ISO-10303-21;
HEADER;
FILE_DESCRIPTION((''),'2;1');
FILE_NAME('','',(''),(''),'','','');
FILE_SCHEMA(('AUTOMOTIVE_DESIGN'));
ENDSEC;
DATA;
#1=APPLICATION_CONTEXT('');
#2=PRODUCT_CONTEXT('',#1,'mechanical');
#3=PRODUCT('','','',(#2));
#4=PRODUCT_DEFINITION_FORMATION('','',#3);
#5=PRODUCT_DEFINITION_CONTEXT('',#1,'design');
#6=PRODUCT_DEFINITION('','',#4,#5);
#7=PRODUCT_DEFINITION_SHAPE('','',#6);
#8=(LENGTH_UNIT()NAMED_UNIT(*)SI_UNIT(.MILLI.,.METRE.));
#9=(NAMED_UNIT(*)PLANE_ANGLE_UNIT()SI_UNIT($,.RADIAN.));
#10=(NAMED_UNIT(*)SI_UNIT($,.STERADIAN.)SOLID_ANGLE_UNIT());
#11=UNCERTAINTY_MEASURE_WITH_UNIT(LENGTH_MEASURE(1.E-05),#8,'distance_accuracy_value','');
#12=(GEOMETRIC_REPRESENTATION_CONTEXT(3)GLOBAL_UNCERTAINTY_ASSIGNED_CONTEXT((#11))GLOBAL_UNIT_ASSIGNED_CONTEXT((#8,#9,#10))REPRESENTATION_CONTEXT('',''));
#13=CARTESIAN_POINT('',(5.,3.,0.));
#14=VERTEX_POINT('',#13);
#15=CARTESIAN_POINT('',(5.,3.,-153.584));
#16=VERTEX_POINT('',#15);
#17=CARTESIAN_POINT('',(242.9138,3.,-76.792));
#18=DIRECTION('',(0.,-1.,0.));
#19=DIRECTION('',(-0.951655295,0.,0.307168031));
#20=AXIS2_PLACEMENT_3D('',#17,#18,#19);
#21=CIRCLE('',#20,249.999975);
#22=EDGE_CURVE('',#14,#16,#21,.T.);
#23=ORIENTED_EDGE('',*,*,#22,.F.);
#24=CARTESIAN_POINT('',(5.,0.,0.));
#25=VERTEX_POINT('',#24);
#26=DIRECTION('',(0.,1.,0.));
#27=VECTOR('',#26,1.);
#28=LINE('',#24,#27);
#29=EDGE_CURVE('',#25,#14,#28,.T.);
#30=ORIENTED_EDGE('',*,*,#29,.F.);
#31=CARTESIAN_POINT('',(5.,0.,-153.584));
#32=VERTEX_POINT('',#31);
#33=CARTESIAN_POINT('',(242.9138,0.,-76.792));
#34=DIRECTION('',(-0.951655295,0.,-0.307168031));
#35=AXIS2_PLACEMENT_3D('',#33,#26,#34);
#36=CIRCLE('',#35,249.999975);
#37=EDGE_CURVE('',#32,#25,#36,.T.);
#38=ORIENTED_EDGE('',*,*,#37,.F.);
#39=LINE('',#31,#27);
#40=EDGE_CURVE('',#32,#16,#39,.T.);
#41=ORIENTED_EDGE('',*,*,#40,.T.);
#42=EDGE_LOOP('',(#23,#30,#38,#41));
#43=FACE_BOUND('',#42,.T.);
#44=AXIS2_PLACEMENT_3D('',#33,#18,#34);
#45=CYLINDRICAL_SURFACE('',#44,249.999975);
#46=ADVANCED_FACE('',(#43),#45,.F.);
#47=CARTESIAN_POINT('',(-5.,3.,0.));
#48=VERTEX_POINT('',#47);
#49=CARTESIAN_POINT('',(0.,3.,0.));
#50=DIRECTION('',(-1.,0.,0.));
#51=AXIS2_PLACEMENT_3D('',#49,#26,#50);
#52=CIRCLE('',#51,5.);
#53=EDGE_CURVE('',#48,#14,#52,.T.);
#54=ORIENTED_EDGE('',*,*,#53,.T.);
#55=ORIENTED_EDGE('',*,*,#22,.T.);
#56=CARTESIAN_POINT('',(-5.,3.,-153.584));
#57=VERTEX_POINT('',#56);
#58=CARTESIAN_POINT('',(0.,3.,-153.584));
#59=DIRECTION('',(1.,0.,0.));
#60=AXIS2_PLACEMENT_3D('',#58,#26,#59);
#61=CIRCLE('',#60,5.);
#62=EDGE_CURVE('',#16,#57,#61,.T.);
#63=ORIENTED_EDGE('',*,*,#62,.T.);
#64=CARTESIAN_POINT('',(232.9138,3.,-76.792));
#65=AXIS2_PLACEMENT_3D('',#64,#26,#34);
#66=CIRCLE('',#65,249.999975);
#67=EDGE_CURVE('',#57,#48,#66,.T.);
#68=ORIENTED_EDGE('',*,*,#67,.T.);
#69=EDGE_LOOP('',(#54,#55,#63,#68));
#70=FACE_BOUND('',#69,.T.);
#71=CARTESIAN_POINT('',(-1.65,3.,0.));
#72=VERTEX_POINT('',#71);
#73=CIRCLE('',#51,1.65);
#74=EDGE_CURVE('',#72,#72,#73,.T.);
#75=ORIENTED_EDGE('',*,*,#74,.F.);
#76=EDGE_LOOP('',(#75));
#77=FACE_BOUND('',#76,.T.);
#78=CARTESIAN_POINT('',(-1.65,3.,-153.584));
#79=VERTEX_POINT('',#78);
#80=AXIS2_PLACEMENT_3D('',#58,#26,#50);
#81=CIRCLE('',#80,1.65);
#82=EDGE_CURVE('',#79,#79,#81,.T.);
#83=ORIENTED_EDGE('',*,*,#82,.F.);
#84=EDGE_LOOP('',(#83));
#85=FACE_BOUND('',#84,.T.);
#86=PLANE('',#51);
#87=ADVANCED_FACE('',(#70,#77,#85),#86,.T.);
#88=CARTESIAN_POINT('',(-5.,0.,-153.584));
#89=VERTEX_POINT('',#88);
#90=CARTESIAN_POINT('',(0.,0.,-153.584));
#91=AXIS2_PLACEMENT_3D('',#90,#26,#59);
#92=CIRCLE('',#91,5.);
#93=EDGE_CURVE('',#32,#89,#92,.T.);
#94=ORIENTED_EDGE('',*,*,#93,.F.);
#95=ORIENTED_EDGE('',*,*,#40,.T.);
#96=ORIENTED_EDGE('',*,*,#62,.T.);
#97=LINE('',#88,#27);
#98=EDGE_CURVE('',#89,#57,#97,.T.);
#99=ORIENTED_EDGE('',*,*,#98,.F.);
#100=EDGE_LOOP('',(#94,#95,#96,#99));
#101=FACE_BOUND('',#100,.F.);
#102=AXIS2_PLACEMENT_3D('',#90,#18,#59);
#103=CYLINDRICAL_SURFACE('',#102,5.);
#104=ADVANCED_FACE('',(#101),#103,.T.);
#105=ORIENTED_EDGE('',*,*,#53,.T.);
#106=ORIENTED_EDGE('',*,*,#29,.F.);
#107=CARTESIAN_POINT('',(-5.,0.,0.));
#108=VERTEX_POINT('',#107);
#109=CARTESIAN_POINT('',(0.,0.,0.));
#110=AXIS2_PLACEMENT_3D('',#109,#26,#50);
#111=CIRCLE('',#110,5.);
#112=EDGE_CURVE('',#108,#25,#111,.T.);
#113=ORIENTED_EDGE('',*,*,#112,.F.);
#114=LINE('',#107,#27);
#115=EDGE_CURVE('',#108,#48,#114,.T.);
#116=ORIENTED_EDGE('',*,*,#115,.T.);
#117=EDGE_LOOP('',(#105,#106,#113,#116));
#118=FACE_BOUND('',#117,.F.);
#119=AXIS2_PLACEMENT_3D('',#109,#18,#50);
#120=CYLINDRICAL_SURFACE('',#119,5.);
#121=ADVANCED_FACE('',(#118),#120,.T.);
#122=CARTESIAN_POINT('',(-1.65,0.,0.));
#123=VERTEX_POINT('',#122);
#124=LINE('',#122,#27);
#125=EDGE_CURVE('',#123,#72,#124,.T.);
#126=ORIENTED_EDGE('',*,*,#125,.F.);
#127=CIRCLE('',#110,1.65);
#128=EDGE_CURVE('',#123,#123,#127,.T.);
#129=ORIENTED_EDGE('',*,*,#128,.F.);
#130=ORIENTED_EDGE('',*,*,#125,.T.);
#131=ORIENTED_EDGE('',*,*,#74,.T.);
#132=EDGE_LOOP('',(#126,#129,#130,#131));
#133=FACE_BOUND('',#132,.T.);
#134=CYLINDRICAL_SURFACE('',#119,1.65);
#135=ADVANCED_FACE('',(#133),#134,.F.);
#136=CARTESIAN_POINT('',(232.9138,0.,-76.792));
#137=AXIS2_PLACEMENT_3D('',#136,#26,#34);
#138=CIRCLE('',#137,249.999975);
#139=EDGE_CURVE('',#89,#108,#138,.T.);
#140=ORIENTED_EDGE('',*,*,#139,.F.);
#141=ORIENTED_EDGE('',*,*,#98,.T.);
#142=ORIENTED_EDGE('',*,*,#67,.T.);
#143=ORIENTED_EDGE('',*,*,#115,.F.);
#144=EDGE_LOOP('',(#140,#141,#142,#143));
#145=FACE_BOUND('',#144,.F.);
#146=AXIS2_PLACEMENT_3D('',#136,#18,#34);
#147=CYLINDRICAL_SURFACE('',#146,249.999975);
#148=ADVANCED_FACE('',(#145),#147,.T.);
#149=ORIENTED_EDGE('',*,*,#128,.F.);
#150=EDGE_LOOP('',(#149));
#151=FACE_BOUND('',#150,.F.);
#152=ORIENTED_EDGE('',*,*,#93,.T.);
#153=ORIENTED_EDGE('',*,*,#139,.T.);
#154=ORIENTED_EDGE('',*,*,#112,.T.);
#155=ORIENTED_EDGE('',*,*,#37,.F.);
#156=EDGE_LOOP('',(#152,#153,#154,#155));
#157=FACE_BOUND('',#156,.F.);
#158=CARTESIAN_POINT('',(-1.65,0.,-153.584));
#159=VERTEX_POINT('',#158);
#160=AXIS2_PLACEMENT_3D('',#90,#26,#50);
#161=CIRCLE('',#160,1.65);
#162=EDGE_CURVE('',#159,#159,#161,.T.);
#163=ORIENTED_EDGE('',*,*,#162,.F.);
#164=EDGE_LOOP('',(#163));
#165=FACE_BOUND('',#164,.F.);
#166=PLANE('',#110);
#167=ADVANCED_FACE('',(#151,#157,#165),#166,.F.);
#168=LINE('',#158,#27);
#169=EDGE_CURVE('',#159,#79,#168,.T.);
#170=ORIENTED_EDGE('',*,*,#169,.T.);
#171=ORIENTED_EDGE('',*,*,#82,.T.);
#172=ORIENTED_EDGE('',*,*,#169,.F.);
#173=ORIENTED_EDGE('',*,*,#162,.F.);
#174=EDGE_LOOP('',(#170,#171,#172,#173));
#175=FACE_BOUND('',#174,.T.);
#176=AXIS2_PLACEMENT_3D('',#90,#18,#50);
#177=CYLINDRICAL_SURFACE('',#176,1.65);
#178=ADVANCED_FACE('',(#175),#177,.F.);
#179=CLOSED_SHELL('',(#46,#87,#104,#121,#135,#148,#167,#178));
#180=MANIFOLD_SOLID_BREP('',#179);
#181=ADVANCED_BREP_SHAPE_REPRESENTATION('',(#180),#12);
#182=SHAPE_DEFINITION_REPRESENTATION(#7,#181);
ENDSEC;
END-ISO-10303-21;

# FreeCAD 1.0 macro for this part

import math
import FreeCAD as App
import Part
import Sketcher
Q = App.Units.Quantity

doc = App.newDocument("Part")
body = doc.addObject("PartDesign::Body", "Body")

# Sketch on XZ plane
sketch1 = doc.addObject("Sketcher::SketchObject", "Sketch")
body.addObject(sketch1)
sketch1.AttachmentSupport = (doc.XZ_Plane, [""])
sketch1.MapMode = "FlatFace"
sketch1.addGeometry([
    Part.ArcOfCircle(Part.Circle(App.Vector(232.9138, -76.792, 0), App.Vector(0, 0, 1), 249.999975), math.radians(162.111355), math.radians(197.888645)),  # 0
    Part.ArcOfCircle(Part.Circle(App.Vector(0, 0, 0), App.Vector(0, 0, 1), 5), math.radians(0), math.radians(180)),  # 1
    Part.ArcOfCircle(Part.Circle(App.Vector(242.9138, -76.792, 0), App.Vector(0, 0, 1), 249.999975), math.radians(162.111355), math.radians(197.888645)),  # 2
    Part.ArcOfCircle(Part.Circle(App.Vector(0, -153.584, 0), App.Vector(0, 0, 1), 5), math.radians(180), math.radians(360)),  # 3
    Part.Circle(App.Vector(0, -153.584, 0), App.Vector(0, 0, 1), 1.65),  # 4
    Part.Circle(App.Vector(0, 0, 0), App.Vector(0, 0, 1), 1.65),  # 5
], False)
sketch1.addConstraint([
    Sketcher.Constraint("Coincident", 0, 1, 1, 2),
    Sketcher.Constraint("Coincident", 1, 1, 2, 1),
    Sketcher.Constraint("Coincident", 2, 2, 3, 2),
    Sketcher.Constraint("Coincident", 3, 1, 0, 2),
    Sketcher.Constraint("Coincident", 1, 3, -1, 1),
    Sketcher.Constraint("Coincident", 5, 3, -1, 1),
    Sketcher.Constraint("Coincident", 4, 3, 3, 3),
    Sketcher.Constraint("Equal", 0, 2),
    Sketcher.Constraint("Equal", 1, 3),
    Sketcher.Constraint("Equal", 4, 5),
    Sketcher.Constraint("Symmetric", 2, 2, 3, 1, -2),
    Sketcher.Constraint("PointOnObject", 0, 1, -1),
    Sketcher.Constraint("PointOnObject", 1, 1, -1),
    Sketcher.Constraint("Horizontal", 4, 3, 2, 2),
    Sketcher.Constraint("Radius", 0, Q("250 mm")),
    Sketcher.Constraint("Radius", 1, Q("5 mm")),
    Sketcher.Constraint("Diameter", 4, Q("3.3 mm")),
    Sketcher.Constraint("DistanceY", 3, 3, -1, 1, Q("153.584 mm")),
])
pad1 = doc.addObject("PartDesign::Pad", "Pad")
body.addObject(pad1)
pad1.Profile = sketch1
pad1.Length = 3
pad1.Reversed = True

doc.recompute()
